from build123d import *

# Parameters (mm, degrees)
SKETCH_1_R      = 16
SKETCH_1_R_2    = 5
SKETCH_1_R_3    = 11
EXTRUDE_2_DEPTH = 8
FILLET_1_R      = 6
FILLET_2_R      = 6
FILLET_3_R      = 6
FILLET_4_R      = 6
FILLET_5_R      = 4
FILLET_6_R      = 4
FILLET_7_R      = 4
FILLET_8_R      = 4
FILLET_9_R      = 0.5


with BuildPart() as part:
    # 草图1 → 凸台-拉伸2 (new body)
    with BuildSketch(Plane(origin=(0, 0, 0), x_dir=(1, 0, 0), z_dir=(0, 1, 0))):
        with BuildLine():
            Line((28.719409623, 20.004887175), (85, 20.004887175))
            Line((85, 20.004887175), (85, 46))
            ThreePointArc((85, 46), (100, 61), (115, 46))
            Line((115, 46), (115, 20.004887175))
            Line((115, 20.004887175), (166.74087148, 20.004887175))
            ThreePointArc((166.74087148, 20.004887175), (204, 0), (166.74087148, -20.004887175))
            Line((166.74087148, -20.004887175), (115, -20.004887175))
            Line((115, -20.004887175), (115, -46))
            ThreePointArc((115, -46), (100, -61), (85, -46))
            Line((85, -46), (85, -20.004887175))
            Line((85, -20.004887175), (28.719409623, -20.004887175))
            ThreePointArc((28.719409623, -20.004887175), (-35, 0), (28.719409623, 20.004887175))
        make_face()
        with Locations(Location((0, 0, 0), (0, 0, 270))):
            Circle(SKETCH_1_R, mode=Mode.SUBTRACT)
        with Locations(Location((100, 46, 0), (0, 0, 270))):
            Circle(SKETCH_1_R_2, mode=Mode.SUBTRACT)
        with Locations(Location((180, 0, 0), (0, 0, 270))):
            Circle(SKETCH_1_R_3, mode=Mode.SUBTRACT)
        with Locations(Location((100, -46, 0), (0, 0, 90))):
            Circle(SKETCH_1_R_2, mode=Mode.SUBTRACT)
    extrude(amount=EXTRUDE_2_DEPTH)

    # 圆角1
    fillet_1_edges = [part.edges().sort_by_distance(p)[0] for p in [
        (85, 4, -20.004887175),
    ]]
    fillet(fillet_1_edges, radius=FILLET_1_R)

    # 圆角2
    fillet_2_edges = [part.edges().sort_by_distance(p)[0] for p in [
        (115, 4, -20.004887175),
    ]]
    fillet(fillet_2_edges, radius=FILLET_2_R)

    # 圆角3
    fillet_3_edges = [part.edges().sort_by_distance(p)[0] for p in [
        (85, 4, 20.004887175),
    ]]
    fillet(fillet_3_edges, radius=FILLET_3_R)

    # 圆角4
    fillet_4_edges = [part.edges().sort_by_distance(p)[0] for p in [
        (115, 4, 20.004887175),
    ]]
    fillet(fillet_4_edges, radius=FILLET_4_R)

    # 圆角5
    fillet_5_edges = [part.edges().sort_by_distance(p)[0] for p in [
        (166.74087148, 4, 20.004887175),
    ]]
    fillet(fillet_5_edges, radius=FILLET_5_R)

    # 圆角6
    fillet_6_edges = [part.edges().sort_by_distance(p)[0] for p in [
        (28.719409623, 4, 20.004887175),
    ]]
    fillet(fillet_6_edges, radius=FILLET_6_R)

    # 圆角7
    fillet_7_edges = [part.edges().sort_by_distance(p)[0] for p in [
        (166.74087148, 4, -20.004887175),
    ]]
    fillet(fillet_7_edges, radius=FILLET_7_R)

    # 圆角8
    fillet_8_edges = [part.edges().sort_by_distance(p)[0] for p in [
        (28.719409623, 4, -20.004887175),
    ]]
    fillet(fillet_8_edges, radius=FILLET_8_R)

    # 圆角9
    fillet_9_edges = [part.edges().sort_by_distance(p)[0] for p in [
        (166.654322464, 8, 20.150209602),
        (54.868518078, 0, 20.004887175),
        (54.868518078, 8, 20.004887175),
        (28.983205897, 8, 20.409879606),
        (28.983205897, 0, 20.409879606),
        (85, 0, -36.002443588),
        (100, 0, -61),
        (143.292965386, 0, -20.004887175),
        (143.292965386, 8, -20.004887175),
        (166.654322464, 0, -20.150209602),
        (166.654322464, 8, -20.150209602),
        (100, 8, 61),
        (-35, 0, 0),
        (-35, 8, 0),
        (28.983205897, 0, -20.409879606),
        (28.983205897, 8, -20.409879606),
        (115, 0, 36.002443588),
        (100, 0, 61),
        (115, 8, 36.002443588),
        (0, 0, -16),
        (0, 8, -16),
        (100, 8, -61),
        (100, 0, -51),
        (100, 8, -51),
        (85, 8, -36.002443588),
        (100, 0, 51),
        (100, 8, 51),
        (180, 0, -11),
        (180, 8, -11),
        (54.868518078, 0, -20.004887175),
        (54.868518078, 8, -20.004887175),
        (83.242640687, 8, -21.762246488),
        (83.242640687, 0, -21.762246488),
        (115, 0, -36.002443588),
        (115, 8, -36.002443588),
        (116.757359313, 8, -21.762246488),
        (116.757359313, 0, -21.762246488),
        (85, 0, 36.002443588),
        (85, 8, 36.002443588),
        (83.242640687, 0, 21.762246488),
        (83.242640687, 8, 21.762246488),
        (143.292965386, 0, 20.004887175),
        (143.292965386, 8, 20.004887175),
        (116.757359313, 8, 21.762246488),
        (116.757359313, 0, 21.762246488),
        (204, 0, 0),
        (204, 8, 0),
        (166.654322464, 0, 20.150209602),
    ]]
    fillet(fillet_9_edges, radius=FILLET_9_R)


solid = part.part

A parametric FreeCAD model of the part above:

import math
import FreeCAD as App
import Part
import Sketcher

V = App.Vector


def edges_at(feature, points):
    """Names of the edges that pass closest to the given points."""
    edges = feature.Shape.Edges
    near = lambda p: min(range(len(edges)), key=lambda i: edges[i].distToShape(Part.Vertex(*p))[0])
    return sorted({f"Edge{near(p) + 1}" for p in points})

doc = App.newDocument("Part")
body = doc.addObject("PartDesign::Body", "Body")

sketch1 = doc.addObject("Sketcher::SketchObject", "Sketch")
body.addObject(sketch1)
sketch1.AttachmentSupport = (doc.XZ_Plane, [""])
sketch1.MapMode = "FlatFace"
sketch1.addGeometry([
    Part.LineSegment(V(85, -20, 0), V(29, -20, 0)),
    Part.ArcOfCircle(Part.Circle(V(0, 0, 0), V(0, 0, 1), 35), math.radians(35), math.radians(325)),
    Part.LineSegment(V(29, 20, 0), V(85, 20, 0)),
    Part.LineSegment(V(85, 20, 0), V(85, 46, 0)),
    Part.ArcOfCircle(Part.Circle(V(100, 46, 0), V(0, 0, 1), 15), math.radians(0), math.radians(180)),
    Part.LineSegment(V(115, 46, 0), V(115, 20, 0)),
    Part.LineSegment(V(115, 20, 0), V(167, 20, 0)),
    Part.ArcOfCircle(Part.Circle(V(180, 0, 0), V(0, 0, 1), 24), math.radians(-124), math.radians(124)),
    Part.LineSegment(V(167, -20, 0), V(115, -20, 0)),
    Part.LineSegment(V(115, -20, 0), V(115, -46, 0)),
    Part.ArcOfCircle(Part.Circle(V(100, -46, 0), V(0, 0, 1), 15), math.radians(180), math.radians(360)),
    Part.LineSegment(V(85, -46, 0), V(85, -20, 0)),
    Part.Circle(V(100, 46, 0), V(0, 0, 1), 5),
    Part.Circle(V(180, 0, 0), V(0, 0, 1), 11),
    Part.Circle(V(100, -46, 0), V(0, 0, 1), 5),
    Part.Circle(V(0, 0, 0), V(0, 0, 1), 16),
], False)
sketch1.addConstraint([
    Sketcher.Constraint("Coincident", 0, 2, 1, 2),
    Sketcher.Constraint("Coincident", 1, 1, 2, 1),
    Sketcher.Constraint("Coincident", 2, 2, 3, 1),
    Sketcher.Constraint("Tangent", 3, 2, 4, 2),
    Sketcher.Constraint("Tangent", 4, 1, 5, 1),
    Sketcher.Constraint("Coincident", 5, 2, 6, 1),
    Sketcher.Constraint("Coincident", 6, 2, 7, 2),
    Sketcher.Constraint("Coincident", 7, 1, 8, 1),
    Sketcher.Constraint("Coincident", 8, 2, 9, 1),
    Sketcher.Constraint("Tangent", 9, 2, 10, 2),
    Sketcher.Constraint("Tangent", 10, 1, 11, 1),
    Sketcher.Constraint("Coincident", 11, 2, 0, 1),
    Sketcher.Constraint("Horizontal", 0),
    Sketcher.Constraint("Horizontal", 2),
    Sketcher.Constraint("Vertical", 3),
    Sketcher.Constraint("Vertical", 5),
    Sketcher.Constraint("Horizontal", 6),
    Sketcher.Constraint("Horizontal", 8),
    Sketcher.Constraint("Vertical", 9),
    Sketcher.Constraint("Vertical", 11),
    Sketcher.Constraint("Coincident", 1, 3, -1, 1),
    Sketcher.Constraint("Coincident", 15, 3, -1, 1),
    Sketcher.Constraint("Coincident", 12, 3, 4, 3),
    Sketcher.Constraint("Coincident", 13, 3, 7, 3),
    Sketcher.Constraint("Coincident", 14, 3, 10, 3),
    Sketcher.Constraint("Equal", 4, 10),
    Sketcher.Constraint("Equal", 12, 14),
    Sketcher.Constraint("Symmetric", 4, 3, 10, 3, -1),
    Sketcher.Constraint("Symmetric", 6, 2, 7, 1, -1),
    Sketcher.Constraint("Horizontal", 2, 2, 5, 2),
    Sketcher.Constraint("Horizontal", 0, 2, 7, 1),
    Sketcher.Constraint("Diameter", 12, 10.0),
    Sketcher.Constraint("Diameter", 13, 22.0),
    Sketcher.Constraint("Diameter", 15, 32.0),
    Sketcher.Constraint("Radius", 1, 35.0),
    Sketcher.Constraint("Radius", 4, 15.0),
    Sketcher.Constraint("Radius", 7, 24.0),
    Sketcher.Constraint("DistanceX", -1, 1, 4, 3, 100.0),
    Sketcher.Constraint("DistanceY", -1, 1, 4, 3, 46.0),
    Sketcher.Constraint("DistanceX", -1, 1, 7, 3, 180.0),
    Sketcher.Constraint("DistanceX", 0, 2, 0, 1, 56.28059),
])
pad1 = doc.addObject("PartDesign::Pad", "Pad")
body.addObject(pad1)
pad1.Profile = sketch1
pad1.Length = 8
pad1.Reversed = True
doc.recompute()

fillet = doc.addObject("PartDesign::Fillet", "Fillet")
body.addObject(fillet)
fillet.Base = (pad1, edges_at(pad1, [(85, 4, -20.005)]))
fillet.Radius = 6
doc.recompute()

fillet2 = doc.addObject("PartDesign::Fillet", "Fillet001")
body.addObject(fillet2)
fillet2.Base = (fillet, edges_at(fillet, [(115, 4, -20.005)]))
fillet2.Radius = 6
doc.recompute()

fillet3 = doc.addObject("PartDesign::Fillet", "Fillet002")
body.addObject(fillet3)
fillet3.Base = (fillet2, edges_at(fillet2, [(85, 4, 20.005)]))
fillet3.Radius = 6
doc.recompute()

fillet4 = doc.addObject("PartDesign::Fillet", "Fillet003")
body.addObject(fillet4)
fillet4.Base = (fillet3, edges_at(fillet3, [(115, 4, 20.005)]))
fillet4.Radius = 6
doc.recompute()

fillet5 = doc.addObject("PartDesign::Fillet", "Fillet004")
body.addObject(fillet5)
fillet5.Base = (fillet4, edges_at(fillet4, [(166.741, 4, 20.005)]))
fillet5.Radius = 4
doc.recompute()

fillet6 = doc.addObject("PartDesign::Fillet", "Fillet005")
body.addObject(fillet6)
fillet6.Base = (fillet5, edges_at(fillet5, [(28.719, 4, 20.005)]))
fillet6.Radius = 4
doc.recompute()

fillet7 = doc.addObject("PartDesign::Fillet", "Fillet006")
body.addObject(fillet7)
fillet7.Base = (fillet6, edges_at(fillet6, [(166.741, 4, -20.005)]))
fillet7.Radius = 4
doc.recompute()

fillet8 = doc.addObject("PartDesign::Fillet", "Fillet007")
body.addObject(fillet8)
fillet8.Base = (fillet7, edges_at(fillet7, [(28.719, 4, -20.005)]))
fillet8.Radius = 4
doc.recompute()

fillet9 = doc.addObject("PartDesign::Fillet", "Fillet008")
body.addObject(fillet9)
fillet9.Base = (fillet8, edges_at(fillet8, [
    (166.654, 8, 20.15),
    (54.869, 0, 20.005),
    (54.869, 8, 20.005),
    (28.983, 8, 20.41),
    (28.983, 0, 20.41),
    (85, 0, -36.002),
    (100, 0, -61),
    (143.293, 0, -20.005),
    (143.293, 8, -20.005),
    (166.654, 0, -20.15),
    (166.654, 8, -20.15),
    (100, 8, 61),
    (-35, 0, 0),
    (-35, 8, 0),
    (28.983, 0, -20.41),
    (28.983, 8, -20.41),
    (115, 0, 36.002),
    (100, 0, 61),
    (115, 8, 36.002),
    (0, 0, -16),
    (0, 8, -16),
    (100, 8, -61),
    (100, 0, -51),
    (100, 8, -51),
    (85, 8, -36.002),
    (100, 0, 51),
    (100, 8, 51),
    (180, 0, -11),
    (180, 8, -11),
    (54.869, 0, -20.005),
    (54.869, 8, -20.005),
    (83.243, 8, -21.762),
    (83.243, 0, -21.762),
    (115, 0, -36.002),
    (115, 8, -36.002),
    (116.757, 8, -21.762),
    (116.757, 0, -21.762),
    (85, 0, 36.002),
    (85, 8, 36.002),
    (83.243, 0, 21.762),
    (83.243, 8, 21.762),
    (143.293, 0, 20.005),
    (143.293, 8, 20.005),
    (116.757, 8, 21.762),
    (116.757, 0, 21.762),
    (204, 0, 0),
    (204, 8, 0),
    (166.654, 0, 20.15),
]))
fillet9.Radius = 0.5

doc.recompute()
